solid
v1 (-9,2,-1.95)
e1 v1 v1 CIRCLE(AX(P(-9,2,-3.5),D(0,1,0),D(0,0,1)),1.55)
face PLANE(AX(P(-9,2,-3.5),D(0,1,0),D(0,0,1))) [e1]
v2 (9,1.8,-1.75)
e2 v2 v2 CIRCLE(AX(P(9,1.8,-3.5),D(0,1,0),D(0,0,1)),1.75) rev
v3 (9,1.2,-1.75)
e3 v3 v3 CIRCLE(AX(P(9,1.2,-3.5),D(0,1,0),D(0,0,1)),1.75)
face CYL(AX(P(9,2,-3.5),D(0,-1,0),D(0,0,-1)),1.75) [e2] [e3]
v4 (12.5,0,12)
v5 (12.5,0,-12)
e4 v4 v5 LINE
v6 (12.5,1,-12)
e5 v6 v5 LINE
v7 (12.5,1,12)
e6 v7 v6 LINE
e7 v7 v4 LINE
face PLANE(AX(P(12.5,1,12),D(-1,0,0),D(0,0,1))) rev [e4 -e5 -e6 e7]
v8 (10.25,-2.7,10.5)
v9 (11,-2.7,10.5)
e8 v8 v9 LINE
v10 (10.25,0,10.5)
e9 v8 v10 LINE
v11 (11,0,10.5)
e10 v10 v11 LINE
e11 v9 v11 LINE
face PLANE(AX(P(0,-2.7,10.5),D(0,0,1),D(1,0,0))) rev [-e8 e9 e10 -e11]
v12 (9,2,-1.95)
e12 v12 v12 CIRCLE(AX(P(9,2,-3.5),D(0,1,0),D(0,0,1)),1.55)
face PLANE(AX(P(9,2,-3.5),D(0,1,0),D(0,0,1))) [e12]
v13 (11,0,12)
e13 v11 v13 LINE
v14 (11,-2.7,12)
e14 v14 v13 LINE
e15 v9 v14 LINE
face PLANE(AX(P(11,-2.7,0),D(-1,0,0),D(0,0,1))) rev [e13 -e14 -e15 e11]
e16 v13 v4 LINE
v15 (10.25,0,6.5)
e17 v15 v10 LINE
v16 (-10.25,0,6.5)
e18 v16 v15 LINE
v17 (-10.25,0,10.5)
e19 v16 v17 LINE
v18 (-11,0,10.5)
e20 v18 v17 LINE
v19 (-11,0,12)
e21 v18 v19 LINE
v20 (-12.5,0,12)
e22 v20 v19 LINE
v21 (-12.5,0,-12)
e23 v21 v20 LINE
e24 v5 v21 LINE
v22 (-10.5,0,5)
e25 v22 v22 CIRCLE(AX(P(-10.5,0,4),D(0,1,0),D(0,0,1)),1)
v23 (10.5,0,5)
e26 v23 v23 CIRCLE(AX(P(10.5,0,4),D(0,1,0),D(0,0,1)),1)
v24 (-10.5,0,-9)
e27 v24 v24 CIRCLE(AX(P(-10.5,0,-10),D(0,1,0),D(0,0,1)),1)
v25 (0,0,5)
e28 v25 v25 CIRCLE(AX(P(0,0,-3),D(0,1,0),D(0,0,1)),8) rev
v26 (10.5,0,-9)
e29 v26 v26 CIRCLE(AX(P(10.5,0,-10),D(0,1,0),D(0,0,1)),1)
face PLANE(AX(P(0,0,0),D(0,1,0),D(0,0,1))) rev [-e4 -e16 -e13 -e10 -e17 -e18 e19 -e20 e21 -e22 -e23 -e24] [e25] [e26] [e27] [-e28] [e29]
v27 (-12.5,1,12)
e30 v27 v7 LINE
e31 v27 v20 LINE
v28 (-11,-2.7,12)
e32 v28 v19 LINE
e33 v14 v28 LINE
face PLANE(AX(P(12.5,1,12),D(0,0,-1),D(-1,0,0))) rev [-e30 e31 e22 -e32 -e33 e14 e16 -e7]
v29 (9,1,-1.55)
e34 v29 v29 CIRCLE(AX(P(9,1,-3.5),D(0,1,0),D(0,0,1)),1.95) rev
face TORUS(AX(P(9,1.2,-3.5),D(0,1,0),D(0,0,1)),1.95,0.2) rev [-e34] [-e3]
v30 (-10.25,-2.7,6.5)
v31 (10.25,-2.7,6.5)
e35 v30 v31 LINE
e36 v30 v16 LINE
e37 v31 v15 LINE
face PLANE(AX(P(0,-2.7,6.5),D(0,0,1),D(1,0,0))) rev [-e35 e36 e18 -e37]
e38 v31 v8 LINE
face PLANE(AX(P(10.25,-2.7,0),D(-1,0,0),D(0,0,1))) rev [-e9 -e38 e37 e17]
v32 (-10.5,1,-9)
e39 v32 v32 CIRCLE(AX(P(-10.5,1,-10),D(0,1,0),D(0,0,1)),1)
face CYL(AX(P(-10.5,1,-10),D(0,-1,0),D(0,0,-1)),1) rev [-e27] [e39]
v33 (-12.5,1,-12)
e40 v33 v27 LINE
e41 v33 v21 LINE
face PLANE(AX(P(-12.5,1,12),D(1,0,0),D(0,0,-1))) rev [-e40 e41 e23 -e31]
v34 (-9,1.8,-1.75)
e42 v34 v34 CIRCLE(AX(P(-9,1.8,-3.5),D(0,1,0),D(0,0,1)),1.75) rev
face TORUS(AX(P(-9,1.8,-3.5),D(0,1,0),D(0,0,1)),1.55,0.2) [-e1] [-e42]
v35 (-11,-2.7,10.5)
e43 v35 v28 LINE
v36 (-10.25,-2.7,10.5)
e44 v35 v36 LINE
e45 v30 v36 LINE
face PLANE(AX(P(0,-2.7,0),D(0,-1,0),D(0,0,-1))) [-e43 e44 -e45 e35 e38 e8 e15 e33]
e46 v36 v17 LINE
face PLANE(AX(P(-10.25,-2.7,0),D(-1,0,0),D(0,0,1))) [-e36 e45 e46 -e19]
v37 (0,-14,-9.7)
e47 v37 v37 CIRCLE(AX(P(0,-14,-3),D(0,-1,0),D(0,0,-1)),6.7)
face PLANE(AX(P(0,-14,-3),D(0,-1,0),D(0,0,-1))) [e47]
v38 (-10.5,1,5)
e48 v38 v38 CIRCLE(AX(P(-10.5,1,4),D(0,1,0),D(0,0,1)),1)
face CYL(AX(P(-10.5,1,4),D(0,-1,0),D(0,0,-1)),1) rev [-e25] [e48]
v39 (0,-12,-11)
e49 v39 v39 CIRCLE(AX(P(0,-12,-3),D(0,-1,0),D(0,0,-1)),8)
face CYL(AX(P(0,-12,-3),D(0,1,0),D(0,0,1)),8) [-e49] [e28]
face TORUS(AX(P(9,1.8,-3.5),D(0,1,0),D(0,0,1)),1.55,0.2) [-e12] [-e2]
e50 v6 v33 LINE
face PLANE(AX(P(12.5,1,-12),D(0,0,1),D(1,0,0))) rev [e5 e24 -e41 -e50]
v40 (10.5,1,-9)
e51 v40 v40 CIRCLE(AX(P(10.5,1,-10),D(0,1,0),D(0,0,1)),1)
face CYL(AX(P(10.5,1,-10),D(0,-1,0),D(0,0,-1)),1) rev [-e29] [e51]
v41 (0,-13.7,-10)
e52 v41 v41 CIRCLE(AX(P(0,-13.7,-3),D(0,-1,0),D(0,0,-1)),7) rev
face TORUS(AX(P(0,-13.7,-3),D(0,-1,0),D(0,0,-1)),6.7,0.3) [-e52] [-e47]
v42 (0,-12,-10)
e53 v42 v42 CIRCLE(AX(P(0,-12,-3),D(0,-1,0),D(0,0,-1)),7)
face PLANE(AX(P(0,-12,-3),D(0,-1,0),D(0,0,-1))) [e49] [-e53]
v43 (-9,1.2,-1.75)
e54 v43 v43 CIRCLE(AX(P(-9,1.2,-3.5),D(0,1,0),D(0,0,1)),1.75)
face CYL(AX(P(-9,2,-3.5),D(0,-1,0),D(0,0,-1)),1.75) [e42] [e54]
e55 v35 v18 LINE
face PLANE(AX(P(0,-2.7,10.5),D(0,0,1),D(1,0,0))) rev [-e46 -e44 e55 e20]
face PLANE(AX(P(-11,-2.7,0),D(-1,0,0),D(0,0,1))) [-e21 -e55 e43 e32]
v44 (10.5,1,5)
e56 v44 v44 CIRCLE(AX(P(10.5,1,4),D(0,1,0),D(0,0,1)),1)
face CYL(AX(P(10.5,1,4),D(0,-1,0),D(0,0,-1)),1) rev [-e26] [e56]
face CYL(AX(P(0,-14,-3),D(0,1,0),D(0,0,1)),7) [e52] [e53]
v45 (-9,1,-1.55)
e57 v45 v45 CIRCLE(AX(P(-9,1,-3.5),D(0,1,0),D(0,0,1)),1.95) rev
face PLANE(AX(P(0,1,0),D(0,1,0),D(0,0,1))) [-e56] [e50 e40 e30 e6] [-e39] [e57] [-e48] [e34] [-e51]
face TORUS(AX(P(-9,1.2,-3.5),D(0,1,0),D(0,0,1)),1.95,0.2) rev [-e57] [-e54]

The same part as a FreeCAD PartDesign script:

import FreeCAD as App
import Part
import Sketcher


def edges_at(feature, points):
    """Names of the edges that pass closest to the given points."""
    edges = feature.Shape.Edges
    near = lambda p: min(range(len(edges)), key=lambda i: edges[i].distToShape(Part.Vertex(*p))[0])
    return sorted({f"Edge{near(p) + 1}" for p in points})

doc = App.newDocument("Part")
body = doc.addObject("PartDesign::Body", "Body")

sketch1 = body.newObject("Sketcher::SketchObject", "Sketch")
sketch1.AttachmentSupport = (doc.getObject("XZ_Plane"), [""])
sketch1.MapMode = "FlatFace"
sketch1.addGeometry([
    Part.LineSegment(App.Vector(-12.5, -12, 0), App.Vector(-12.5, 12, 0)),
    Part.LineSegment(App.Vector(-12.5, 12, 0), App.Vector(12.5, 12, 0)),
    Part.LineSegment(App.Vector(12.5, 12, 0), App.Vector(12.5, -12, 0)),
    Part.LineSegment(App.Vector(12.5, -12, 0), App.Vector(-12.5, -12, 0)),
    Part.Circle(App.Vector(-10.5, 4, 0), App.Vector(0, 0, 1), 1),
    Part.Circle(App.Vector(10.5, 4, 0), App.Vector(0, 0, 1), 1),
    Part.Circle(App.Vector(-10.5, -10, 0), App.Vector(0, 0, 1), 1),
    Part.Circle(App.Vector(10.5, -10, 0), App.Vector(0, 0, 1), 1),
], False)
sketch1.addConstraint([
    Sketcher.Constraint("Coincident", 0, 2, 1, 1),
    Sketcher.Constraint("Coincident", 1, 2, 2, 1),
    Sketcher.Constraint("Coincident", 2, 2, 3, 1),
    Sketcher.Constraint("Coincident", 3, 2, 0, 1),
    Sketcher.Constraint("Vertical", 0),
    Sketcher.Constraint("Horizontal", 1),
    Sketcher.Constraint("Vertical", 2),
    Sketcher.Constraint("Horizontal", 3),
    Sketcher.Constraint("Equal", 4, 5),
    Sketcher.Constraint("Equal", 5, 6),
    Sketcher.Constraint("Equal", 6, 7),
    Sketcher.Constraint("Symmetric", 0, 2, 2, 2, -1, 1),
    Sketcher.Constraint("Symmetric", 4, 3, 5, 3, -2),
    Sketcher.Constraint("Symmetric", 6, 3, 7, 3, -2),
    Sketcher.Constraint("Vertical", 4, 3, 6, 3),
    Sketcher.Constraint("Diameter", 4, 2.0),
    Sketcher.Constraint("DistanceX", 1, 1, 1, 2, 25.0),
    Sketcher.Constraint("DistanceY", 0, 1, 0, 2, 24.0),
    Sketcher.Constraint("DistanceY", -1, 1, 4, 3, 4.0),
    Sketcher.Constraint("DistanceY", 6, 3, -1, 1, 10.0),
    Sketcher.Constraint("DistanceX", 4, 3, 5, 3, 21.0),
])
pad1 = body.newObject("PartDesign::Pad", "Pad")
pad1.Profile = sketch1
pad1.Length = 1
pad1.Reversed = True

sketch2 = body.newObject("Sketcher::SketchObject", "Sketch001")
sketch2.AttachmentSupport = (doc.getObject("XZ_Plane"), [""])
sketch2.MapMode = "FlatFace"
sketch2.AttachmentOffset = App.Placement(App.Vector(0, 0, -1), App.Rotation())
sketch2.addGeometry([
    Part.Circle(App.Vector(-9, -3.5, 0), App.Vector(0, 0, 1), 1.8),
    Part.Circle(App.Vector(9, -3.5, 0), App.Vector(0, 0, 1), 1.8),
], False)
sketch2.addConstraint([
    Sketcher.Constraint("Equal", 0, 1),
    Sketcher.Constraint("Symmetric", 0, 3, 1, 3, -2),
    Sketcher.Constraint("Diameter", 0, 3.5),
    Sketcher.Constraint("DistanceX", 0, 3, -1, 1, 9.0),
    Sketcher.Constraint("DistanceY", 0, 3, -1, 1, 3.5),
])
pad2 = body.newObject("PartDesign::Pad", "Pad001")
pad2.Profile = sketch2
pad2.Length = 1
pad2.Reversed = True
doc.recompute()

fillet = body.newObject("PartDesign::Fillet", "Fillet")
fillet.Base = (pad2, edges_at(pad2, [
    (-10.75, 1, -3.5),
    (-10.75, 2, -3.5),
    (7.25, 1, -3.5),
    (7.25, 2, -3.5),
]))
fillet.Radius = 0.2

sketch3 = body.newObject("Sketcher::SketchObject", "Sketch002")
sketch3.AttachmentSupport = (doc.getObject("XZ_Plane"), [""])
sketch3.MapMode = "FlatFace"
sketch3.addGeometry([
    Part.LineSegment(App.Vector(-10.2, 10.5, 0), App.Vector(-10.2, 6.5, 0)),
    Part.LineSegment(App.Vector(-10.2, 6.5, 0), App.Vector(10.2, 6.5, 0)),
    Part.LineSegment(App.Vector(10.2, 6.5, 0), App.Vector(10.2, 10.5, 0)),
    Part.LineSegment(App.Vector(10.2, 10.5, 0), App.Vector(11, 10.5, 0)),
    Part.LineSegment(App.Vector(11, 10.5, 0), App.Vector(11, 12, 0)),
    Part.LineSegment(App.Vector(11, 12, 0), App.Vector(-11, 12, 0)),
    Part.LineSegment(App.Vector(-11, 12, 0), App.Vector(-11, 10.5, 0)),
    Part.LineSegment(App.Vector(-11, 10.5, 0), App.Vector(-10.2, 10.5, 0)),
], False)
sketch3.addConstraint([
    Sketcher.Constraint("Coincident", 0, 2, 1, 1),
    Sketcher.Constraint("Coincident", 1, 2, 2, 1),
    Sketcher.Constraint("Coincident", 2, 2, 3, 1),
    Sketcher.Constraint("Coincident", 3, 2, 4, 1),
    Sketcher.Constraint("Coincident", 4, 2, 5, 1),
    Sketcher.Constraint("Coincident", 5, 2, 6, 1),
    Sketcher.Constraint("Coincident", 6, 2, 7, 1),
    Sketcher.Constraint("Coincident", 7, 2, 0, 1),
    Sketcher.Constraint("Vertical", 0),
    Sketcher.Constraint("Horizontal", 1),
    Sketcher.Constraint("Vertical", 2),
    Sketcher.Constraint("Horizontal", 3),
    Sketcher.Constraint("Vertical", 4),
    Sketcher.Constraint("Horizontal", 5),
    Sketcher.Constraint("Vertical", 6),
    Sketcher.Constraint("Horizontal", 7),
    Sketcher.Constraint("Symmetric", 3, 2, 6, 2, -2),
    Sketcher.Constraint("Equal", 3, 7),
    Sketcher.Constraint("DistanceX", 5, 2, 5, 1, 22.0),
    Sketcher.Constraint("DistanceY", 0, 2, 0, 1, 4.0),
    Sketcher.Constraint("DistanceX", 1, 1, 1, 2, 20.5),
    Sketcher.Constraint("DistanceY", 4, 1, 4, 2, 1.5),
    Sketcher.Constraint("DistanceY", -1, 1, 4, 2, 12.0),
])
pad3 = body.newObject("PartDesign::Pad", "Pad002")
pad3.Profile = sketch3
pad3.Length = 2.7

sketch4 = body.newObject("Sketcher::SketchObject", "Sketch003")
sketch4.AttachmentSupport = (doc.getObject("XZ_Plane"), [""])
sketch4.MapMode = "FlatFace"
sketch4.addGeometry(Part.Circle(App.Vector(0, -3, 0), App.Vector(0, 0, 1), 8), False)
sketch4.addConstraint([
    Sketcher.Constraint("PointOnObject", 0, 3, -2),
    Sketcher.Constraint("Diameter", 0, 16.0),
    Sketcher.Constraint("DistanceY", 0, 3, -1, 1, 3.0),
])
pad4 = body.newObject("PartDesign::Pad", "Pad003")
pad4.Profile = sketch4
pad4.Length = 12

sketch5 = body.newObject("Sketcher::SketchObject", "Sketch004")
sketch5.AttachmentSupport = (doc.getObject("XZ_Plane"), [""])
sketch5.MapMode = "FlatFace"
sketch5.AttachmentOffset = App.Placement(App.Vector(0, 0, 12), App.Rotation())
sketch5.addGeometry(Part.Circle(App.Vector(0, -3, 0), App.Vector(0, 0, 1), 7), False)
sketch5.addConstraint([
    Sketcher.Constraint("PointOnObject", 0, 3, -2),
    Sketcher.Constraint("Diameter", 0, 14.0),
    Sketcher.Constraint("DistanceY", 0, 3, -1, 1, 3.0),
])
pad5 = body.newObject("PartDesign::Pad", "Pad004")
pad5.Profile = sketch5
pad5.Length = 2
doc.recompute()

fillet2 = body.newObject("PartDesign::Fillet", "Fillet001")
fillet2.Base = (pad5, edges_at(pad5, [(-7, -14, -3)]))
fillet2.Radius = 0.3

doc.recompute()
